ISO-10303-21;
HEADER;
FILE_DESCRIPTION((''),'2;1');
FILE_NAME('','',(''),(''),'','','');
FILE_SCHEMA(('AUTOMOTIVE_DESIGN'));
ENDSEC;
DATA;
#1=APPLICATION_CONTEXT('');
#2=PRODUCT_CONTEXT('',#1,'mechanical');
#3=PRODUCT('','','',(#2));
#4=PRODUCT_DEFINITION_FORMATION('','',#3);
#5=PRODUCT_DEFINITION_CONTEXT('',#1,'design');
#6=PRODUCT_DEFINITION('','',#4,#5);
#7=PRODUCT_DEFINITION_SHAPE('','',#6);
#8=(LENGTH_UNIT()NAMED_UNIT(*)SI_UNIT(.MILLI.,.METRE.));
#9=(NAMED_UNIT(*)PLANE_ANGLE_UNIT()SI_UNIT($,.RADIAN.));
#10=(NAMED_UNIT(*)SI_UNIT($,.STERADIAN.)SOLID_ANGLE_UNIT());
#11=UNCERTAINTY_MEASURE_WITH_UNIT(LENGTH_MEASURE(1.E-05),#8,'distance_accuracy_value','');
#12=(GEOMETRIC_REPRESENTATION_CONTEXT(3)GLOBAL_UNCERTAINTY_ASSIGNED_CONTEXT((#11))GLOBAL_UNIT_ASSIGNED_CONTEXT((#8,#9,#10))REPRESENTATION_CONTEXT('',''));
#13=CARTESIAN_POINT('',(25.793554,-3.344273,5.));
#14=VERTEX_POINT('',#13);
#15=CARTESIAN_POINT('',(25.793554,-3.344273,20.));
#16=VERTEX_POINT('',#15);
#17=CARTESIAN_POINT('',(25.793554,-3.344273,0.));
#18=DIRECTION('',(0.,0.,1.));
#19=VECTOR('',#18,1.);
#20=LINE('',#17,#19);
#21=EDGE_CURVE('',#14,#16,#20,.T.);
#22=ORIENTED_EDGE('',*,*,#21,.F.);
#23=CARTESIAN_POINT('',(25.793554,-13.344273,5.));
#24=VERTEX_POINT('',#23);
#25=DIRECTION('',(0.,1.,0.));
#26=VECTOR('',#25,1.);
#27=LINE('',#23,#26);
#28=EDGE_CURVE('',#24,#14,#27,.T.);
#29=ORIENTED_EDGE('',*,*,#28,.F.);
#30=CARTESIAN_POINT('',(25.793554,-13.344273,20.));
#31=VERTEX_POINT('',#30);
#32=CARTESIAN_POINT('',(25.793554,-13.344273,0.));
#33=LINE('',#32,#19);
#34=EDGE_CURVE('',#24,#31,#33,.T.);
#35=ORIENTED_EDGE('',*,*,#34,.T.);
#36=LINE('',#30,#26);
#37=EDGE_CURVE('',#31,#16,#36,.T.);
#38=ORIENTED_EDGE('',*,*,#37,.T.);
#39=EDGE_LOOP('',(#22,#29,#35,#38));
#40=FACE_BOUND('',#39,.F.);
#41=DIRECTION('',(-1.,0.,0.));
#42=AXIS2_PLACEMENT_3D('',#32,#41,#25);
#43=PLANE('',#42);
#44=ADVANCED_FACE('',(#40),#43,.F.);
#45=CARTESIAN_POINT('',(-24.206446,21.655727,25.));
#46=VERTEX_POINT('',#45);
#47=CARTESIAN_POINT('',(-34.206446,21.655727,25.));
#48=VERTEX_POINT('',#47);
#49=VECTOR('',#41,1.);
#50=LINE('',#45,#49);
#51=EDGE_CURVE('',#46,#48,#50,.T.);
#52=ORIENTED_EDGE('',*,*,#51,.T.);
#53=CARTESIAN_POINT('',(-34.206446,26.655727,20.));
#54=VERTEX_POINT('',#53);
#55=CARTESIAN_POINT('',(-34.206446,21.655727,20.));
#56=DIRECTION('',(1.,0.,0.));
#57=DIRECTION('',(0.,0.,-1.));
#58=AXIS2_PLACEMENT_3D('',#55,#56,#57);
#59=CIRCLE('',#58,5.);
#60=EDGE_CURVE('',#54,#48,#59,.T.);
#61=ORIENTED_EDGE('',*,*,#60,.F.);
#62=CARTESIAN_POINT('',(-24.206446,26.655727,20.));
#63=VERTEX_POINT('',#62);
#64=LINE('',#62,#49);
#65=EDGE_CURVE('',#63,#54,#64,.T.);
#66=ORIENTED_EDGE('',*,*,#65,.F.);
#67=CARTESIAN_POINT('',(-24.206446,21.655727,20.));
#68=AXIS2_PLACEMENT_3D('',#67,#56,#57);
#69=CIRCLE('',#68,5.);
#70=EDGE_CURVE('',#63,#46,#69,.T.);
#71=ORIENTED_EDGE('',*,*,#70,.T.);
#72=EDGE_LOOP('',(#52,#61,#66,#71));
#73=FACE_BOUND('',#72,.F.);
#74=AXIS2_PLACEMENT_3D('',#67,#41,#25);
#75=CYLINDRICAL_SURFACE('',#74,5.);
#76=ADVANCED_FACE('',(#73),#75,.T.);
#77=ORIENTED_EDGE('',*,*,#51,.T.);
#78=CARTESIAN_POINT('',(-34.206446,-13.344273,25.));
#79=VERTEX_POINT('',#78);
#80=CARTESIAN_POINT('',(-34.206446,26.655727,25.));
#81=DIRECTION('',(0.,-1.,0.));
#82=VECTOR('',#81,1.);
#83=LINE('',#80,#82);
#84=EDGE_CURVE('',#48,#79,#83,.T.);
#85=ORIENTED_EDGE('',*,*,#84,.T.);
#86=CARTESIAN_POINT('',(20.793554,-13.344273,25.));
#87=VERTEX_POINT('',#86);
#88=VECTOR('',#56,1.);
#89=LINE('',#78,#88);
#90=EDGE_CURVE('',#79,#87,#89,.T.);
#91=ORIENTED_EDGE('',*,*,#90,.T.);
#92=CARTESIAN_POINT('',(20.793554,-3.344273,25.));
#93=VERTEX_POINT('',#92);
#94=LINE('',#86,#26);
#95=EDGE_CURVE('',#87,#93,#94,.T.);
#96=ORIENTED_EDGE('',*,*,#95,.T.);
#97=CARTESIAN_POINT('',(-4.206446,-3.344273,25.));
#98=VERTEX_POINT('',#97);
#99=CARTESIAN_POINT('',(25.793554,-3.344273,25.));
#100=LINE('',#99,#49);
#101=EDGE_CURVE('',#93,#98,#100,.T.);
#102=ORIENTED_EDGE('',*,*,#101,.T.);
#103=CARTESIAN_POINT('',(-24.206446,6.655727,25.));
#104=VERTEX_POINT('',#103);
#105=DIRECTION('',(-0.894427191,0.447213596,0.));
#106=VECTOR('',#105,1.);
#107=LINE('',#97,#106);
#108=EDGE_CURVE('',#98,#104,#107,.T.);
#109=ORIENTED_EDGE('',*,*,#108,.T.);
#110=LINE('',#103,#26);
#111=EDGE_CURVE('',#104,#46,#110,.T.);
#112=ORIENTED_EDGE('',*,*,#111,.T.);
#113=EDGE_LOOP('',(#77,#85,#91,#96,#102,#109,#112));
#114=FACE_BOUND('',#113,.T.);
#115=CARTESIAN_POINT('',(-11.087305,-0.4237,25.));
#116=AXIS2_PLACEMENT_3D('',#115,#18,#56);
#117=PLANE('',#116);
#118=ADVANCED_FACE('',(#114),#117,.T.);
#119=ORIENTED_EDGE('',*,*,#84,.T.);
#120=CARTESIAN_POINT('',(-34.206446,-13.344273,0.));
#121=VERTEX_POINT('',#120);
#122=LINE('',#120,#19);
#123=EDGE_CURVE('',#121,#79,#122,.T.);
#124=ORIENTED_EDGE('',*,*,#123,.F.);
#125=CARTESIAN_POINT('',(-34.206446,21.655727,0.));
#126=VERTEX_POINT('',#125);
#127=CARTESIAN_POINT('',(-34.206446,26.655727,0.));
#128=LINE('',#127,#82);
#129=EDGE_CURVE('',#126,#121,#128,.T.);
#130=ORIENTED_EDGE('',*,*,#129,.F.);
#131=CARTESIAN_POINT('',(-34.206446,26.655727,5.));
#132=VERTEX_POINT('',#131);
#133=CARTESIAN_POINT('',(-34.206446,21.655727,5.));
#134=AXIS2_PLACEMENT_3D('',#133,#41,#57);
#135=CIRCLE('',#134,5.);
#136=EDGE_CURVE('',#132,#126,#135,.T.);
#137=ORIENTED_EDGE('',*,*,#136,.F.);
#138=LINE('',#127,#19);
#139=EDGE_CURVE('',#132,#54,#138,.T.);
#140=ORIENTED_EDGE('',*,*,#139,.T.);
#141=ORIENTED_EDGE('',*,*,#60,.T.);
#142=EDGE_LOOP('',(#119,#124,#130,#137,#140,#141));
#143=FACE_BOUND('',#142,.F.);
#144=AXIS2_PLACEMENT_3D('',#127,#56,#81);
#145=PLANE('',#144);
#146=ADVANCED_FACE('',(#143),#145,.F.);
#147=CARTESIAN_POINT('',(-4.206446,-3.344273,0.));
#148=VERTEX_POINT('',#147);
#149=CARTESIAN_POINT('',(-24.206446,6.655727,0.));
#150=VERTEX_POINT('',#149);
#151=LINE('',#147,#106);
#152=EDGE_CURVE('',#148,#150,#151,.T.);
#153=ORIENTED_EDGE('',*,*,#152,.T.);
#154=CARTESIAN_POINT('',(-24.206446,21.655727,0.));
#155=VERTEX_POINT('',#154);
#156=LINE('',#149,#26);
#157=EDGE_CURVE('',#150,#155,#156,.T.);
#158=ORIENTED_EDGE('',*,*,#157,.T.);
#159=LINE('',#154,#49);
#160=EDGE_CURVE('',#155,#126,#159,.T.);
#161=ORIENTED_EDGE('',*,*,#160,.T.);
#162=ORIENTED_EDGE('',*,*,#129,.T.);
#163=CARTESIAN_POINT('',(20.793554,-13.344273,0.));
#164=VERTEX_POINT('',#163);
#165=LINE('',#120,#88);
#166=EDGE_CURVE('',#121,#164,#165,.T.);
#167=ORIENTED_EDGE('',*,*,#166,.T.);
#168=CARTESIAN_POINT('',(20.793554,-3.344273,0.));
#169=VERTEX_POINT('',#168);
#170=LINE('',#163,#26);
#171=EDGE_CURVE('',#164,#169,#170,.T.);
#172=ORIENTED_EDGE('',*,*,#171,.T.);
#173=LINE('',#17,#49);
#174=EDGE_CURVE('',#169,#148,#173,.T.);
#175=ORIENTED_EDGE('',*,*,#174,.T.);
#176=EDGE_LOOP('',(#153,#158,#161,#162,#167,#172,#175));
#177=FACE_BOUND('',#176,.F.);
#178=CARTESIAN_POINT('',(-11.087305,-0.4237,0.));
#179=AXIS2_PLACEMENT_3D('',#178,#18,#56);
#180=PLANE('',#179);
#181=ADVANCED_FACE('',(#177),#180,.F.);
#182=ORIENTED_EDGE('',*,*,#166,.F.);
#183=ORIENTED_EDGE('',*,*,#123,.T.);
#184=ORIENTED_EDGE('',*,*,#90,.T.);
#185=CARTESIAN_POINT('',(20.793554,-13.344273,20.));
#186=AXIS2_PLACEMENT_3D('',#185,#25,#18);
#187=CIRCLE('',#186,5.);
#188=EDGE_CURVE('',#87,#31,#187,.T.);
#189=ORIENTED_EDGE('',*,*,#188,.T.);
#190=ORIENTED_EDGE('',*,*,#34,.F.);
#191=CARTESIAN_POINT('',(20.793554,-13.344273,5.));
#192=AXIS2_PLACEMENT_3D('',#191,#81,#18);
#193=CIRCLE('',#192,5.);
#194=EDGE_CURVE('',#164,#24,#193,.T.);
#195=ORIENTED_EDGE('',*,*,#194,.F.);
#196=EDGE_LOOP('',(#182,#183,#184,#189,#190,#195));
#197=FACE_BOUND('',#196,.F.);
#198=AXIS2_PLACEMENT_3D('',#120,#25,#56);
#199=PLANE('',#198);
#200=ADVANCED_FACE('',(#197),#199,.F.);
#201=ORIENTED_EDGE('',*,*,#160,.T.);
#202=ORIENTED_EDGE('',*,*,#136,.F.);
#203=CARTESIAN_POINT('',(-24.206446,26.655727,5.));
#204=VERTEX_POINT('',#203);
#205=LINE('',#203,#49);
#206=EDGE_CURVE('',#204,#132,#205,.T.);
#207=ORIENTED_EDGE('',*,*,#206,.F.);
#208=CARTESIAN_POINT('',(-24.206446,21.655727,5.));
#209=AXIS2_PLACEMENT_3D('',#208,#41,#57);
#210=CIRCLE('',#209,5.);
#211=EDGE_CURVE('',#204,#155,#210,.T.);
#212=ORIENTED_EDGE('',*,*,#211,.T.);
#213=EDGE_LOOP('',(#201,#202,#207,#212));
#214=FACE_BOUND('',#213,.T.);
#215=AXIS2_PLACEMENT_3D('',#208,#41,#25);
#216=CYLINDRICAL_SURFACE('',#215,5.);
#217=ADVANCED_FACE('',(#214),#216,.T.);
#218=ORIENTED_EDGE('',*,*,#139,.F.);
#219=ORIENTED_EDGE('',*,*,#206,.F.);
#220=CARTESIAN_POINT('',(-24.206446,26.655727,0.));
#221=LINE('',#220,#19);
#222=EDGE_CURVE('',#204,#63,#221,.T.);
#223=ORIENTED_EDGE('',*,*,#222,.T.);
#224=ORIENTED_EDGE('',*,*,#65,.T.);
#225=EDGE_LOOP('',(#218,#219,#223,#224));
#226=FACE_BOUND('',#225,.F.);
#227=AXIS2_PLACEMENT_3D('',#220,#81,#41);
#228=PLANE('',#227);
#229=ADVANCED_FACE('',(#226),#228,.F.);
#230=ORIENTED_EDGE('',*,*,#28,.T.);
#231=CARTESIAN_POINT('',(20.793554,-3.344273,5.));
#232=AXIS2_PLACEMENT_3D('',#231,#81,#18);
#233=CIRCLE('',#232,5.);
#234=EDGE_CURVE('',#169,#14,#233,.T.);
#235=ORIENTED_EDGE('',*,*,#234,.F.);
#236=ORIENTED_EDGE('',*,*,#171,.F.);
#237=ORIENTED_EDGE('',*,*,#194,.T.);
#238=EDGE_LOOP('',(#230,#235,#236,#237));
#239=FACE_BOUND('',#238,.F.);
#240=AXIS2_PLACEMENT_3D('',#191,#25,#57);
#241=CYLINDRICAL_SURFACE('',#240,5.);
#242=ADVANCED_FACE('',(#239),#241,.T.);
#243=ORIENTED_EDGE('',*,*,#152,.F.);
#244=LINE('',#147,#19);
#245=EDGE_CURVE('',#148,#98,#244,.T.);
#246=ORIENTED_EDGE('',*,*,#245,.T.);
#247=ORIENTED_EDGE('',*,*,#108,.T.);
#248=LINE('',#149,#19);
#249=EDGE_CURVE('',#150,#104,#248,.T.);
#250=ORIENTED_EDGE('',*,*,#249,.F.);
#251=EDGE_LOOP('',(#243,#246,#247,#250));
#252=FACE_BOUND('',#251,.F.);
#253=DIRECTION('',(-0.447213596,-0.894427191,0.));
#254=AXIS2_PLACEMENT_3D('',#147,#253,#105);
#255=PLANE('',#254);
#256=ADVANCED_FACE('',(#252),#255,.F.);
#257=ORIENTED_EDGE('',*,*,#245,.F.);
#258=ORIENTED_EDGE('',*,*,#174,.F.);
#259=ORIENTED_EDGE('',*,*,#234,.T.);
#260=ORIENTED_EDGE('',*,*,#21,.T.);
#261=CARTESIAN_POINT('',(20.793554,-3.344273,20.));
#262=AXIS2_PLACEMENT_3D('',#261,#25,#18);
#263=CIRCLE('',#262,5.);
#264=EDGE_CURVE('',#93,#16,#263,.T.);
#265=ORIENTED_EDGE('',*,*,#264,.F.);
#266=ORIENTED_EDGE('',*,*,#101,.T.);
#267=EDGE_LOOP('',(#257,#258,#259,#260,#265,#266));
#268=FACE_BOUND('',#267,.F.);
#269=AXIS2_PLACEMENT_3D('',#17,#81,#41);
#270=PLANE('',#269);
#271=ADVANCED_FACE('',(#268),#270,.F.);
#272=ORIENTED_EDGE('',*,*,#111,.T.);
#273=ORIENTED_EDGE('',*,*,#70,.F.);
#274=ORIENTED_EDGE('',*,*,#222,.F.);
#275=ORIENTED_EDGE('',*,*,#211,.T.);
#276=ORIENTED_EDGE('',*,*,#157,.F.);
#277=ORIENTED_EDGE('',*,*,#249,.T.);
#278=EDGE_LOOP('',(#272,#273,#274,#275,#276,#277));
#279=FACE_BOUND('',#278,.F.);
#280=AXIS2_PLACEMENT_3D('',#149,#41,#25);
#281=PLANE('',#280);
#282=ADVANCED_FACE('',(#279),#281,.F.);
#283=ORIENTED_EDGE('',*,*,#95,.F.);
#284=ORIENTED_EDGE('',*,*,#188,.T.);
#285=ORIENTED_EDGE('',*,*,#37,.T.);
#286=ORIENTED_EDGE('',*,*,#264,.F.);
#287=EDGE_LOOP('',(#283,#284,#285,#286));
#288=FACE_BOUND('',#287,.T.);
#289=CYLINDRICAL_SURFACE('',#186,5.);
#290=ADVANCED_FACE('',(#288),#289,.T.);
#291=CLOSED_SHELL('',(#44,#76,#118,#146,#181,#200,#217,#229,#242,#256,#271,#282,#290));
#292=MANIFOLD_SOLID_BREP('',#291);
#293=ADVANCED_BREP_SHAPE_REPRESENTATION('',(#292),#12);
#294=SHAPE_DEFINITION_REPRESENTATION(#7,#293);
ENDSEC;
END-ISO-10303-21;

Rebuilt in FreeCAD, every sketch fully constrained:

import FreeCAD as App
import Part
import Sketcher

V = App.Vector
Q = App.Units.Quantity


def edges_at(feature, points):
    """Names of the edges that pass closest to the given points."""
    edges = feature.Shape.Edges
    near = lambda p: min(range(len(edges)), key=lambda i: edges[i].distToShape(Part.Vertex(*p))[0])
    return sorted({f"Edge{near(p) + 1}" for p in points})

doc = App.newDocument("Part")
params = doc.addObject("Spreadsheet::Sheet", "Params")
for row, (alias, value) in enumerate([
    ("sketch1_width", "10 mm"),
    ("sketch1_width2", "60 mm"),
    ("sketch1_width3", "30 mm"),
    ("sketch1_height", "40 mm"),
    ("sketch1_height2", "20 mm"),
    ("pad1_length", "25 mm"),
    ("fillet_radius", "5 mm"),
    ("fillet2_radius", "5 mm"),
], start=1):
    params.set(f"A{row}", alias)
    params.set(f"B{row}", "=" + value)
    params.setAlias(f"B{row}", alias)

body = doc.addObject("PartDesign::Body", "Body")

sketch1 = body.newObject("Sketcher::SketchObject", "Sketch")
sketch1.AttachmentSupport = (doc.getObject("XY_Plane"), [""])
sketch1.MapMode = "FlatFace"
sketch1.addGeometry(Part.LineSegment(V(-24.206446, 26.655727, 0), V(-34.206446, 26.655727, 0)), False)
sketch1.addGeometry(Part.LineSegment(V(-34.206446, 26.655727, 0), V(-34.206446, -13.344273, 0)), False)
sketch1.addGeometry(Part.LineSegment(V(-34.206446, -13.344273, 0), V(25.793554, -13.344273, 0)), False)
sketch1.addGeometry(Part.LineSegment(V(25.793554, -13.344273, 0), V(25.793554, -3.344273, 0)), False)
sketch1.addGeometry(Part.LineSegment(V(25.793554, -3.344273, 0), V(-4.206446, -3.344273, 0)), False)
sketch1.addGeometry(Part.LineSegment(V(-4.206446, -3.344273, 0), V(-24.206446, 6.655727, 0)), False)
sketch1.addGeometry(Part.LineSegment(V(-24.206446, 6.655727, 0), V(-24.206446, 26.655727, 0)), False)
sketch1.addConstraint(Sketcher.Constraint("Coincident", 0, 2, 1, 1))
sketch1.addConstraint(Sketcher.Constraint("Coincident", 1, 2, 2, 1))
sketch1.addConstraint(Sketcher.Constraint("Coincident", 2, 2, 3, 1))
sketch1.addConstraint(Sketcher.Constraint("Coincident", 3, 2, 4, 1))
sketch1.addConstraint(Sketcher.Constraint("Coincident", 4, 2, 5, 1))
sketch1.addConstraint(Sketcher.Constraint("Coincident", 5, 2, 6, 1))
sketch1.addConstraint(Sketcher.Constraint("Coincident", 6, 2, 0, 1))
sketch1.addConstraint(Sketcher.Constraint("Horizontal", 0))
sketch1.addConstraint(Sketcher.Constraint("Vertical", 1))
sketch1.addConstraint(Sketcher.Constraint("Horizontal", 2))
sketch1.addConstraint(Sketcher.Constraint("Vertical", 3))
sketch1.addConstraint(Sketcher.Constraint("Horizontal", 4))
sketch1.addConstraint(Sketcher.Constraint("Vertical", 6))
sketch1.addConstraint(Sketcher.Constraint("Equal", 0, 3))
sketch1.addConstraint(Sketcher.Constraint("DistanceX", 0, 2, 0, 1, Q("10 mm")))
sketch1.addConstraint(Sketcher.Constraint("DistanceX", 2, 1, 2, 2, Q("60 mm")))
sketch1.addConstraint(Sketcher.Constraint("DistanceX", 4, 2, 4, 1, Q("30 mm")))
sketch1.addConstraint(Sketcher.Constraint("DistanceY", 1, 2, 1, 1, Q("40 mm")))
sketch1.addConstraint(Sketcher.Constraint("DistanceY", 6, 1, 6, 2, Q("20 mm")))
sketch1.addConstraint(Sketcher.Constraint("DistanceX", 0, 2, -1, 1, Q("34.206446 mm")))
sketch1.addConstraint(Sketcher.Constraint("DistanceY", -1, 1, 0, 2, Q("26.655727 mm")))
sketch1.setExpression("Constraints[14]", "Params.sketch1_width")
sketch1.setExpression("Constraints[15]", "Params.sketch1_width2")
sketch1.setExpression("Constraints[16]", "Params.sketch1_width3")
sketch1.setExpression("Constraints[17]", "Params.sketch1_height")
sketch1.setExpression("Constraints[18]", "Params.sketch1_height2")
pad1 = body.newObject("PartDesign::Pad", "Pad")
pad1.Profile = sketch1
pad1.setExpression("Length", "Params.pad1_length")
doc.recompute()

fillet = body.newObject("PartDesign::Fillet", "Fillet")
fillet.Base = (pad1, edges_at(pad1, [(-29.206, 26.656, 25), (-29.206, 26.656, 0)]))
fillet.setExpression("Radius", "Params.fillet_radius")
doc.recompute()

fillet2 = body.newObject("PartDesign::Fillet", "Fillet001")
fillet2.Base = (fillet, edges_at(fillet, [(25.794, -8.344, 25), (25.794, -8.344, 0)]))
fillet2.setExpression("Radius", "Params.fillet2_radius")

doc.recompute()
